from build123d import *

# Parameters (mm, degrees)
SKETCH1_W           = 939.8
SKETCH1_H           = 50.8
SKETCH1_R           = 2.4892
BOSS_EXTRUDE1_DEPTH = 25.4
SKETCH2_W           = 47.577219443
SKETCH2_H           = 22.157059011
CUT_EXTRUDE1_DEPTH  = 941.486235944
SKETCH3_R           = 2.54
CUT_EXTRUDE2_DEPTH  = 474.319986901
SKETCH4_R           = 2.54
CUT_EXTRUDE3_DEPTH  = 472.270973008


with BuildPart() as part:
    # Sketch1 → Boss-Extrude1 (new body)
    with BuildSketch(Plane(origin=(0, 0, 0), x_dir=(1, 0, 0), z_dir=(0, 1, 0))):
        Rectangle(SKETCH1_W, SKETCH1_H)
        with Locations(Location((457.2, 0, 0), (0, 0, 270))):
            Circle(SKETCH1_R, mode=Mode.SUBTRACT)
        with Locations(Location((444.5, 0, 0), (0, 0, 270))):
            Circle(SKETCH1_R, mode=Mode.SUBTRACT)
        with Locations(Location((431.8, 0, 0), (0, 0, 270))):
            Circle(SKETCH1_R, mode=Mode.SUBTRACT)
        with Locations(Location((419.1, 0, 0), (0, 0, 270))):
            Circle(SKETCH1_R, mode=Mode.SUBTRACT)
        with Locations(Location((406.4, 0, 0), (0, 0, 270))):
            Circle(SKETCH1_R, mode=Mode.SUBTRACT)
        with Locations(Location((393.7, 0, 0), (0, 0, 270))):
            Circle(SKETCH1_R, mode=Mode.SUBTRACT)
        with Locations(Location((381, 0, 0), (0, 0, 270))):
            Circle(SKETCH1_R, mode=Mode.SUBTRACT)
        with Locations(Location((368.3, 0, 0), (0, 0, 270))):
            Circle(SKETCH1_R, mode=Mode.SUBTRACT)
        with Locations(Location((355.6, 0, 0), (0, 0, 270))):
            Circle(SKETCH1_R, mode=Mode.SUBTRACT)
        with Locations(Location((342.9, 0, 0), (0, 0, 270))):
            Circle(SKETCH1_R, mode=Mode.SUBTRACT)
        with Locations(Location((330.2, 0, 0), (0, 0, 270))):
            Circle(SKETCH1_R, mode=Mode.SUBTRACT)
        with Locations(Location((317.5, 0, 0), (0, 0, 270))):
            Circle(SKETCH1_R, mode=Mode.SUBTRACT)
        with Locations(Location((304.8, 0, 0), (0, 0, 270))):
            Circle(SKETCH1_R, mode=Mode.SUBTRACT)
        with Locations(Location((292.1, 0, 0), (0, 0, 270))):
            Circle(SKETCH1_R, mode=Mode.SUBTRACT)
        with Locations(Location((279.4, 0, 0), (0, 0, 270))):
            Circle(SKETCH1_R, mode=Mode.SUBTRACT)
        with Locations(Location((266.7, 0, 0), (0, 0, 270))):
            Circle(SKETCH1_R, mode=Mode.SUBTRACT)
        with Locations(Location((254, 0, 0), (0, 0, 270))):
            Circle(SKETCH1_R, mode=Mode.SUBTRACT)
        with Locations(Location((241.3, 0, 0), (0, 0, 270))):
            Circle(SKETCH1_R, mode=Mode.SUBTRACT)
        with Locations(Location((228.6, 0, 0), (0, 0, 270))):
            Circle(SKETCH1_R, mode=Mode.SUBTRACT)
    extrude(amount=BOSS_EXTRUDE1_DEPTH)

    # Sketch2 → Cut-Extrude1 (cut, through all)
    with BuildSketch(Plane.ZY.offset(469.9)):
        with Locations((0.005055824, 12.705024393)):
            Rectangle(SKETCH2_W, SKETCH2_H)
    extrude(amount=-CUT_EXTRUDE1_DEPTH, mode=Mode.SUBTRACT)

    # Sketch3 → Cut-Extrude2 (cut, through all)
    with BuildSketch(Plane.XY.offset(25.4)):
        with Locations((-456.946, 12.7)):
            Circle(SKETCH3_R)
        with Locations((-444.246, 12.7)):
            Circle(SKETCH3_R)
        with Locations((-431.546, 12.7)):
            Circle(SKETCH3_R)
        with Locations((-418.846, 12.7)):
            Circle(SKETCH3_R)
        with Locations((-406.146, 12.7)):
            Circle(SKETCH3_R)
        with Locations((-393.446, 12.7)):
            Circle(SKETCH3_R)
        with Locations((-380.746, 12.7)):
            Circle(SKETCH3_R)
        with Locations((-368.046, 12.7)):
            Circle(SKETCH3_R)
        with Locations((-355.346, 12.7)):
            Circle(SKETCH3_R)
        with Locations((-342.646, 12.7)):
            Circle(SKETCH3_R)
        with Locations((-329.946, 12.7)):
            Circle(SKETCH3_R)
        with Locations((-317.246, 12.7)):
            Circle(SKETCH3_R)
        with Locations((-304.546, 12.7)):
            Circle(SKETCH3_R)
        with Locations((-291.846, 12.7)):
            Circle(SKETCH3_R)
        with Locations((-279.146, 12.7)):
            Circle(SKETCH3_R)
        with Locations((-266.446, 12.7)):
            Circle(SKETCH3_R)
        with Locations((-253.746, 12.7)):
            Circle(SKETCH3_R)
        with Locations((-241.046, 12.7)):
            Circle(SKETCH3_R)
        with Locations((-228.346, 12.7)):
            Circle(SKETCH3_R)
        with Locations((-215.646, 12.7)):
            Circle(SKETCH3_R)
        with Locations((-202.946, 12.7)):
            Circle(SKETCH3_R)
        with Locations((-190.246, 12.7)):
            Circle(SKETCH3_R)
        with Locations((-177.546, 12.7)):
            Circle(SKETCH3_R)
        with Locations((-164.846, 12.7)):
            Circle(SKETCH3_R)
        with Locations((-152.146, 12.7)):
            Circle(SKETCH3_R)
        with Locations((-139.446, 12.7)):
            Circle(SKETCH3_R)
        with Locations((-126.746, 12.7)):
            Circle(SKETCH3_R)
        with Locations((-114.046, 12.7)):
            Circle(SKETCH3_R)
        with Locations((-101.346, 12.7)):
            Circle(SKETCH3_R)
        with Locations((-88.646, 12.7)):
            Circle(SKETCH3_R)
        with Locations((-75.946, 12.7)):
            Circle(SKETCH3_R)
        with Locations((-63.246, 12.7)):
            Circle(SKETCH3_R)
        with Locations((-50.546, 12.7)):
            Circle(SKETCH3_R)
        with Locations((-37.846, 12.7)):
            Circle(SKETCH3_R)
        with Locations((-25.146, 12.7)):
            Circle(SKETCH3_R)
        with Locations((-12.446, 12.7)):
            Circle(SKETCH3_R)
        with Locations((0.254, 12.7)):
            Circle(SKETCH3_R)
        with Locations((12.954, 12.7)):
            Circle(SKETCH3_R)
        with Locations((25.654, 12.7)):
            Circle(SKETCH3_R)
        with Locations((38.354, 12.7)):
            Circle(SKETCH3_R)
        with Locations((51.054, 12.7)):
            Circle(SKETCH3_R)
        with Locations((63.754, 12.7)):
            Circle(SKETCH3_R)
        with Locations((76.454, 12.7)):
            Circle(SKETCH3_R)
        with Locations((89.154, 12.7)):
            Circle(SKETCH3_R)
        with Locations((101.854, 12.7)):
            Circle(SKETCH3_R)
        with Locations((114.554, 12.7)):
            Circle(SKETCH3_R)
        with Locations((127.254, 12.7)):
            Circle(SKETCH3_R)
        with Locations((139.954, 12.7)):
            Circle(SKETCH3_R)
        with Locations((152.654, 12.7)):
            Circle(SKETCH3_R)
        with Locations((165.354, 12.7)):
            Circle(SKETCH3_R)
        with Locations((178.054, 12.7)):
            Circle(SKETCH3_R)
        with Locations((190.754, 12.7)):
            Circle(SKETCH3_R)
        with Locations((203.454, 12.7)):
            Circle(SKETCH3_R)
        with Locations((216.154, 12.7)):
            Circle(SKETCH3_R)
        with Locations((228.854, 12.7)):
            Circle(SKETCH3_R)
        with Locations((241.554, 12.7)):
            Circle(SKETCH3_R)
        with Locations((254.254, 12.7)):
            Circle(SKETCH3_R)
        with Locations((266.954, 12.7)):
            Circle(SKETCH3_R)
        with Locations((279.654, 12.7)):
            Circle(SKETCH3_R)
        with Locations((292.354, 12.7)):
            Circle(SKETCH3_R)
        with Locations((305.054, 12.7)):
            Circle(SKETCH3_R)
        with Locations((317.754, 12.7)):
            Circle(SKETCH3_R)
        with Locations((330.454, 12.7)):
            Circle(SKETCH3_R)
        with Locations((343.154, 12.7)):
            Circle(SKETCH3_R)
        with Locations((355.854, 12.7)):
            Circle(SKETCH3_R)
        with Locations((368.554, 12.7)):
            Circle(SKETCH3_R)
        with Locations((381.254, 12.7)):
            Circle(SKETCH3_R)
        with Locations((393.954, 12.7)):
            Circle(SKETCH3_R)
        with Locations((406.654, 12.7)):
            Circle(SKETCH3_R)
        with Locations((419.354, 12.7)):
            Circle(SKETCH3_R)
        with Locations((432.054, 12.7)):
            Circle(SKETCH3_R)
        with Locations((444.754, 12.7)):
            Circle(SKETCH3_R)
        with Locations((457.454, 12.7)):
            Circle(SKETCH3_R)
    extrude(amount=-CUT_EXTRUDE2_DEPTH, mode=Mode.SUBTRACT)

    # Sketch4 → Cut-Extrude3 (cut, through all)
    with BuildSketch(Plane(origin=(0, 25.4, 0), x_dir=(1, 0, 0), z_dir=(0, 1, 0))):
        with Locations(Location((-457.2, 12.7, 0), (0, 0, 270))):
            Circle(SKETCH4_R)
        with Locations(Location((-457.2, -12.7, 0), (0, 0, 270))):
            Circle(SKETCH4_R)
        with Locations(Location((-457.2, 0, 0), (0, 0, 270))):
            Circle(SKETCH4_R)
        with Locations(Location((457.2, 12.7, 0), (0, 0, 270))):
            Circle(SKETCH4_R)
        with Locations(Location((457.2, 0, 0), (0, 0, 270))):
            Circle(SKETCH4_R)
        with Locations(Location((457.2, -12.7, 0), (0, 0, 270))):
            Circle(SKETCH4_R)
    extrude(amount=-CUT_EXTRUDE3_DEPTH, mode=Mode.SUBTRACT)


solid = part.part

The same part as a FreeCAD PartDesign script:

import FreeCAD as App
import Part
import Sketcher

V = App.Vector
Q = App.Units.Quantity


def add_polygon(sketch, points):
    """Adds a closed chain of lines whose ends are joined by coincident constraints."""
    first, n = sketch.GeometryCount, len(points)
    for a, b in zip(points, points[1:] + points[:1]):
        sketch.addGeometry(Part.LineSegment(App.Vector(*a, 0), App.Vector(*b, 0)), False)
    for i in range(n):
        sketch.addConstraint(Sketcher.Constraint("Coincident", first + i, 2, first + (i + 1) % n, 1))

doc = App.newDocument("Part")
body = doc.addObject("PartDesign::Body", "Body")

sketch1 = body.newObject("Sketcher::SketchObject", "Sketch")
sketch1.AttachmentSupport = (doc.getObject("XZ_Plane"), [""])
sketch1.MapMode = "FlatFace"
add_polygon(sketch1, [(-469.9, -25.4), (-469.9, 25.4), (469.9, 25.4), (469.9, -25.4)])
sketch1.addGeometry(Part.Circle(V(228.6, 0, 0), V(0, 0, 1), 2.5), False)
sketch1.addGeometry(Part.Circle(V(241.3, 0, 0), V(0, 0, 1), 2.5), False)
sketch1.addGeometry(Part.Circle(V(254, 0, 0), V(0, 0, 1), 2.5), False)
sketch1.addGeometry(Part.Circle(V(266.7, 0, 0), V(0, 0, 1), 2.5), False)
sketch1.addGeometry(Part.Circle(V(279.4, 0, 0), V(0, 0, 1), 2.5), False)
sketch1.addGeometry(Part.Circle(V(292.1, 0, 0), V(0, 0, 1), 2.5), False)
sketch1.addGeometry(Part.Circle(V(304.8, 0, 0), V(0, 0, 1), 2.5), False)
sketch1.addGeometry(Part.Circle(V(317.5, 0, 0), V(0, 0, 1), 2.5), False)
sketch1.addGeometry(Part.Circle(V(330.2, 0, 0), V(0, 0, 1), 2.5), False)
sketch1.addGeometry(Part.Circle(V(342.9, 0, 0), V(0, 0, 1), 2.5), False)
sketch1.addGeometry(Part.Circle(V(355.6, 0, 0), V(0, 0, 1), 2.5), False)
sketch1.addGeometry(Part.Circle(V(368.3, 0, 0), V(0, 0, 1), 2.5), False)
sketch1.addGeometry(Part.Circle(V(381, 0, 0), V(0, 0, 1), 2.5), False)
sketch1.addGeometry(Part.Circle(V(393.7, 0, 0), V(0, 0, 1), 2.5), False)
sketch1.addGeometry(Part.Circle(V(406.4, 0, 0), V(0, 0, 1), 2.5), False)
sketch1.addGeometry(Part.Circle(V(419.1, 0, 0), V(0, 0, 1), 2.5), False)
sketch1.addGeometry(Part.Circle(V(431.8, 0, 0), V(0, 0, 1), 2.5), False)
sketch1.addGeometry(Part.Circle(V(444.5, 0, 0), V(0, 0, 1), 2.5), False)
sketch1.addGeometry(Part.Circle(V(457.2, 0, 0), V(0, 0, 1), 2.5), False)
sketch1.addConstraint(Sketcher.Constraint("Vertical", 0))
sketch1.addConstraint(Sketcher.Constraint("Horizontal", 1))
sketch1.addConstraint(Sketcher.Constraint("Vertical", 2))
sketch1.addConstraint(Sketcher.Constraint("Horizontal", 3))
sketch1.addConstraint(Sketcher.Constraint("Equal", 4, 5))
sketch1.addConstraint(Sketcher.Constraint("Equal", 5, 6))
sketch1.addConstraint(Sketcher.Constraint("Equal", 6, 7))
sketch1.addConstraint(Sketcher.Constraint("Equal", 7, 8))
sketch1.addConstraint(Sketcher.Constraint("Equal", 8, 9))
sketch1.addConstraint(Sketcher.Constraint("Equal", 9, 10))
sketch1.addConstraint(Sketcher.Constraint("Equal", 10, 11))
sketch1.addConstraint(Sketcher.Constraint("Equal", 11, 12))
sketch1.addConstraint(Sketcher.Constraint("Equal", 12, 13))
sketch1.addConstraint(Sketcher.Constraint("Equal", 13, 14))
sketch1.addConstraint(Sketcher.Constraint("Equal", 14, 15))
sketch1.addConstraint(Sketcher.Constraint("Equal", 15, 16))
sketch1.addConstraint(Sketcher.Constraint("Equal", 16, 17))
sketch1.addConstraint(Sketcher.Constraint("Equal", 17, 18))
sketch1.addConstraint(Sketcher.Constraint("Equal", 18, 19))
sketch1.addConstraint(Sketcher.Constraint("Equal", 19, 20))
sketch1.addConstraint(Sketcher.Constraint("Equal", 20, 21))
sketch1.addConstraint(Sketcher.Constraint("Equal", 21, 22))
sketch1.addConstraint(Sketcher.Constraint("Symmetric", 0, 2, 2, 2, -1, 1))
sketch1.addConstraint(Sketcher.Constraint("PointOnObject", 4, 3, -1))
sketch1.addConstraint(Sketcher.Constraint("PointOnObject", 5, 3, -1))
sketch1.addConstraint(Sketcher.Constraint("PointOnObject", 6, 3, -1))
sketch1.addConstraint(Sketcher.Constraint("PointOnObject", 7, 3, -1))
sketch1.addConstraint(Sketcher.Constraint("PointOnObject", 8, 3, -1))
sketch1.addConstraint(Sketcher.Constraint("PointOnObject", 9, 3, -1))
sketch1.addConstraint(Sketcher.Constraint("PointOnObject", 10, 3, -1))
sketch1.addConstraint(Sketcher.Constraint("PointOnObject", 11, 3, -1))
sketch1.addConstraint(Sketcher.Constraint("PointOnObject", 12, 3, -1))
sketch1.addConstraint(Sketcher.Constraint("PointOnObject", 13, 3, -1))
sketch1.addConstraint(Sketcher.Constraint("PointOnObject", 14, 3, -1))
sketch1.addConstraint(Sketcher.Constraint("PointOnObject", 15, 3, -1))
sketch1.addConstraint(Sketcher.Constraint("PointOnObject", 16, 3, -1))
sketch1.addConstraint(Sketcher.Constraint("PointOnObject", 17, 3, -1))
sketch1.addConstraint(Sketcher.Constraint("PointOnObject", 18, 3, -1))
sketch1.addConstraint(Sketcher.Constraint("PointOnObject", 19, 3, -1))
sketch1.addConstraint(Sketcher.Constraint("PointOnObject", 20, 3, -1))
sketch1.addConstraint(Sketcher.Constraint("PointOnObject", 21, 3, -1))
sketch1.addConstraint(Sketcher.Constraint("PointOnObject", 22, 3, -1))
sketch1.addConstraint(Sketcher.Constraint("DistanceX", 1, 1, 1, 2, Q("37 in")))
sketch1.addConstraint(Sketcher.Constraint("DistanceY", 0, 1, 0, 2, Q("2 in")))
sketch1.addConstraint(Sketcher.Constraint("Diameter", 4, Q("0.196 in")))
sketch1.addConstraint(Sketcher.Constraint("DistanceX", -1, 1, 4, 3, Q("9 in")))
sketch1.addConstraint(Sketcher.Constraint("DistanceX", -1, 1, 6, 3, Q("10 in")))
sketch1.addConstraint(Sketcher.Constraint("DistanceX", -1, 1, 8, 3, Q("11 in")))
sketch1.addConstraint(Sketcher.Constraint("DistanceX", -1, 1, 10, 3, Q("12 in")))
sketch1.addConstraint(Sketcher.Constraint("DistanceX", -1, 1, 12, 3, Q("13 in")))
sketch1.addConstraint(Sketcher.Constraint("DistanceX", -1, 1, 14, 3, Q("14 in")))
sketch1.addConstraint(Sketcher.Constraint("DistanceX", -1, 1, 16, 3, Q("15 in")))
sketch1.addConstraint(Sketcher.Constraint("DistanceX", -1, 1, 18, 3, Q("16 in")))
sketch1.addConstraint(Sketcher.Constraint("DistanceX", -1, 1, 20, 3, Q("17 in")))
sketch1.addConstraint(Sketcher.Constraint("DistanceX", -1, 1, 22, 3, Q("18 in")))
sketch1.addConstraint(Sketcher.Constraint("DistanceX", 5, 3, 7, 3, Q("1 in")))
sketch1.addConstraint(Sketcher.Constraint("DistanceX", 7, 3, 9, 3, Q("1 in")))
sketch1.addConstraint(Sketcher.Constraint("DistanceX", 9, 3, 11, 3, Q("1 in")))
sketch1.addConstraint(Sketcher.Constraint("DistanceX", 11, 3, 13, 3, Q("1 in")))
sketch1.addConstraint(Sketcher.Constraint("DistanceX", 13, 3, 15, 3, Q("1 in")))
sketch1.addConstraint(Sketcher.Constraint("DistanceX", 15, 3, 17, 3, Q("1 in")))
sketch1.addConstraint(Sketcher.Constraint("DistanceX", 17, 3, 19, 3, Q("1 in")))
sketch1.addConstraint(Sketcher.Constraint("DistanceX", 19, 3, 21, 3, Q("1 in")))
sketch1.addConstraint(Sketcher.Constraint("DistanceX", 0, 2, 5, 3, Q("28 in")))
pad1 = body.newObject("PartDesign::Pad", "Pad")
pad1.Profile = sketch1
pad1.Length = Q("1 in")
pad1.Reversed = True

sketch2 = body.newObject("Sketcher::SketchObject", "Sketch001")
sketch2.AttachmentSupport = (doc.getObject("YZ_Plane"), [""])
sketch2.MapMode = "FlatFace"
sketch2.AttachmentOffset = App.Placement(V(0, 0, -18.5 * 25.4), App.Rotation())
add_polygon(sketch2, [(24, -24), (2, -24), (2, 24), (24, 24)])
sketch2.addConstraint(Sketcher.Constraint("Horizontal", 0))
sketch2.addConstraint(Sketcher.Constraint("Vertical", 1))
sketch2.addConstraint(Sketcher.Constraint("Horizontal", 2))
sketch2.addConstraint(Sketcher.Constraint("Vertical", 3))
sketch2.addConstraint(Sketcher.Constraint("DistanceX", 0, 2, 0, 1, Q("22.157059 mm")))
sketch2.addConstraint(Sketcher.Constraint("DistanceY", 1, 1, 1, 2, Q("47.577219 mm")))
sketch2.addConstraint(Sketcher.Constraint("DistanceX", -1, 1, 0, 2, Q("1.626495 mm")))
sketch2.addConstraint(Sketcher.Constraint("DistanceY", 0, 2, -1, 1, Q("23.783554 mm")))
pocket1 = body.newObject("PartDesign::Pocket", "Pocket")
pocket1.Profile = sketch2
pocket1.Type = "ThroughAll"
pocket1.Reversed = True

sketch3 = body.newObject("Sketcher::SketchObject", "Sketch002")
sketch3.AttachmentSupport = (doc.getObject("XY_Plane"), [""])
sketch3.MapMode = "FlatFace"
sketch3.AttachmentOffset = App.Placement(V(0, 0, 1 * 25.4), App.Rotation())
sketch3.addGeometry(Part.Circle(V(-456.9, 12.7, 0), V(0, 0, 1), 2.5), False)
sketch3.addGeometry(Part.Circle(V(-444.2, 12.7, 0), V(0, 0, 1), 2.5), False)
sketch3.addGeometry(Part.Circle(V(-431.5, 12.7, 0), V(0, 0, 1), 2.5), False)
sketch3.addGeometry(Part.Circle(V(-418.8, 12.7, 0), V(0, 0, 1), 2.5), False)
sketch3.addGeometry(Part.Circle(V(-406.1, 12.7, 0), V(0, 0, 1), 2.5), False)
sketch3.addGeometry(Part.Circle(V(-393.4, 12.7, 0), V(0, 0, 1), 2.5), False)
sketch3.addGeometry(Part.Circle(V(-380.7, 12.7, 0), V(0, 0, 1), 2.5), False)
sketch3.addGeometry(Part.Circle(V(-368, 12.7, 0), V(0, 0, 1), 2.5), False)
sketch3.addGeometry(Part.Circle(V(-355.3, 12.7, 0), V(0, 0, 1), 2.5), False)
sketch3.addGeometry(Part.Circle(V(-342.6, 12.7, 0), V(0, 0, 1), 2.5), False)
sketch3.addGeometry(Part.Circle(V(-329.9, 12.7, 0), V(0, 0, 1), 2.5), False)
sketch3.addGeometry(Part.Circle(V(-317.2, 12.7, 0), V(0, 0, 1), 2.5), False)
sketch3.addGeometry(Part.Circle(V(-304.5, 12.7, 0), V(0, 0, 1), 2.5), False)
sketch3.addGeometry(Part.Circle(V(-291.8, 12.7, 0), V(0, 0, 1), 2.5), False)
sketch3.addGeometry(Part.Circle(V(-279.1, 12.7, 0), V(0, 0, 1), 2.5), False)
sketch3.addGeometry(Part.Circle(V(-266.4, 12.7, 0), V(0, 0, 1), 2.5), False)
sketch3.addGeometry(Part.Circle(V(-253.7, 12.7, 0), V(0, 0, 1), 2.5), False)
sketch3.addGeometry(Part.Circle(V(-241, 12.7, 0), V(0, 0, 1), 2.5), False)
sketch3.addGeometry(Part.Circle(V(-228.3, 12.7, 0), V(0, 0, 1), 2.5), False)
sketch3.addGeometry(Part.Circle(V(-215.6, 12.7, 0), V(0, 0, 1), 2.5), False)
sketch3.addGeometry(Part.Circle(V(-202.9, 12.7, 0), V(0, 0, 1), 2.5), False)
sketch3.addGeometry(Part.Circle(V(-190.2, 12.7, 0), V(0, 0, 1), 2.5), False)
sketch3.addGeometry(Part.Circle(V(-177.5, 12.7, 0), V(0, 0, 1), 2.5), False)
sketch3.addGeometry(Part.Circle(V(-164.8, 12.7, 0), V(0, 0, 1), 2.5), False)
sketch3.addGeometry(Part.Circle(V(-152.1, 12.7, 0), V(0, 0, 1), 2.5), False)
sketch3.addGeometry(Part.Circle(V(-139.4, 12.7, 0), V(0, 0, 1), 2.5), False)
sketch3.addGeometry(Part.Circle(V(-126.7, 12.7, 0), V(0, 0, 1), 2.5), False)
sketch3.addGeometry(Part.Circle(V(-114, 12.7, 0), V(0, 0, 1), 2.5), False)
sketch3.addGeometry(Part.Circle(V(-101.3, 12.7, 0), V(0, 0, 1), 2.5), False)
sketch3.addGeometry(Part.Circle(V(-88.6, 12.7, 0), V(0, 0, 1), 2.5), False)
sketch3.addGeometry(Part.Circle(V(-75.9, 12.7, 0), V(0, 0, 1), 2.5), False)
sketch3.addGeometry(Part.Circle(V(-63.2, 12.7, 0), V(0, 0, 1), 2.5), False)
sketch3.addGeometry(Part.Circle(V(-50.5, 12.7, 0), V(0, 0, 1), 2.5), False)
sketch3.addGeometry(Part.Circle(V(-37.8, 12.7, 0), V(0, 0, 1), 2.5), False)
sketch3.addGeometry(Part.Circle(V(-25.1, 12.7, 0), V(0, 0, 1), 2.5), False)
sketch3.addGeometry(Part.Circle(V(-12.4, 12.7, 0), V(0, 0, 1), 2.5), False)
sketch3.addGeometry(Part.Circle(V(0.3, 12.7, 0), V(0, 0, 1), 2.5), False)
sketch3.addGeometry(Part.Circle(V(13, 12.7, 0), V(0, 0, 1), 2.5), False)
sketch3.addGeometry(Part.Circle(V(25.7, 12.7, 0), V(0, 0, 1), 2.5), False)
sketch3.addGeometry(Part.Circle(V(38.4, 12.7, 0), V(0, 0, 1), 2.5), False)
sketch3.addGeometry(Part.Circle(V(51.1, 12.7, 0), V(0, 0, 1), 2.5), False)
sketch3.addGeometry(Part.Circle(V(63.8, 12.7, 0), V(0, 0, 1), 2.5), False)
sketch3.addGeometry(Part.Circle(V(76.5, 12.7, 0), V(0, 0, 1), 2.5), False)
sketch3.addGeometry(Part.Circle(V(89.2, 12.7, 0), V(0, 0, 1), 2.5), False)
sketch3.addGeometry(Part.Circle(V(101.9, 12.7, 0), V(0, 0, 1), 2.5), False)
sketch3.addGeometry(Part.Circle(V(114.6, 12.7, 0), V(0, 0, 1), 2.5), False)
sketch3.addGeometry(Part.Circle(V(127.3, 12.7, 0), V(0, 0, 1), 2.5), False)
sketch3.addGeometry(Part.Circle(V(140, 12.7, 0), V(0, 0, 1), 2.5), False)
sketch3.addGeometry(Part.Circle(V(152.7, 12.7, 0), V(0, 0, 1), 2.5), False)
sketch3.addGeometry(Part.Circle(V(165.4, 12.7, 0), V(0, 0, 1), 2.5), False)
sketch3.addGeometry(Part.Circle(V(178.1, 12.7, 0), V(0, 0, 1), 2.5), False)
sketch3.addGeometry(Part.Circle(V(190.8, 12.7, 0), V(0, 0, 1), 2.5), False)
sketch3.addGeometry(Part.Circle(V(203.5, 12.7, 0), V(0, 0, 1), 2.5), False)
sketch3.addGeometry(Part.Circle(V(216.2, 12.7, 0), V(0, 0, 1), 2.5), False)
sketch3.addGeometry(Part.Circle(V(228.9, 12.7, 0), V(0, 0, 1), 2.5), False)
sketch3.addGeometry(Part.Circle(V(241.6, 12.7, 0), V(0, 0, 1), 2.5), False)
sketch3.addGeometry(Part.Circle(V(254.3, 12.7, 0), V(0, 0, 1), 2.5), False)
sketch3.addGeometry(Part.Circle(V(267, 12.7, 0), V(0, 0, 1), 2.5), False)
sketch3.addGeometry(Part.Circle(V(279.7, 12.7, 0), V(0, 0, 1), 2.5), False)
sketch3.addGeometry(Part.Circle(V(292.4, 12.7, 0), V(0, 0, 1), 2.5), False)
sketch3.addGeometry(Part.Circle(V(305.1, 12.7, 0), V(0, 0, 1), 2.5), False)
sketch3.addGeometry(Part.Circle(V(317.8, 12.7, 0), V(0, 0, 1), 2.5), False)
sketch3.addGeometry(Part.Circle(V(330.5, 12.7, 0), V(0, 0, 1), 2.5), False)
sketch3.addGeometry(Part.Circle(V(343.2, 12.7, 0), V(0, 0, 1), 2.5), False)
sketch3.addGeometry(Part.Circle(V(355.9, 12.7, 0), V(0, 0, 1), 2.5), False)
sketch3.addGeometry(Part.Circle(V(368.6, 12.7, 0), V(0, 0, 1), 2.5), False)
sketch3.addGeometry(Part.Circle(V(381.3, 12.7, 0), V(0, 0, 1), 2.5), False)
sketch3.addGeometry(Part.Circle(V(394, 12.7, 0), V(0, 0, 1), 2.5), False)
sketch3.addGeometry(Part.Circle(V(406.7, 12.7, 0), V(0, 0, 1), 2.5), False)
sketch3.addGeometry(Part.Circle(V(419.4, 12.7, 0), V(0, 0, 1), 2.5), False)
sketch3.addGeometry(Part.Circle(V(432.1, 12.7, 0), V(0, 0, 1), 2.5), False)
sketch3.addGeometry(Part.Circle(V(444.8, 12.7, 0), V(0, 0, 1), 2.5), False)
sketch3.addGeometry(Part.Circle(V(457.5, 12.7, 0), V(0, 0, 1), 2.5), False)
sketch3.addConstraint(Sketcher.Constraint("Equal", 0, 1))
sketch3.addConstraint(Sketcher.Constraint("Equal", 1, 2))
sketch3.addConstraint(Sketcher.Constraint("Equal", 2, 3))
sketch3.addConstraint(Sketcher.Constraint("Equal", 3, 4))
sketch3.addConstraint(Sketcher.Constraint("Equal", 4, 5))
sketch3.addConstraint(Sketcher.Constraint("Equal", 5, 6))
sketch3.addConstraint(Sketcher.Constraint("Equal", 6, 7))
sketch3.addConstraint(Sketcher.Constraint("Equal", 7, 8))
sketch3.addConstraint(Sketcher.Constraint("Equal", 8, 9))
sketch3.addConstraint(Sketcher.Constraint("Equal", 9, 10))
sketch3.addConstraint(Sketcher.Constraint("Equal", 10, 11))
sketch3.addConstraint(Sketcher.Constraint("Equal", 11, 12))
sketch3.addConstraint(Sketcher.Constraint("Equal", 12, 13))
sketch3.addConstraint(Sketcher.Constraint("Equal", 13, 14))
sketch3.addConstraint(Sketcher.Constraint("Equal", 14, 15))
sketch3.addConstraint(Sketcher.Constraint("Equal", 15, 16))
sketch3.addConstraint(Sketcher.Constraint("Equal", 16, 17))
sketch3.addConstraint(Sketcher.Constraint("Equal", 17, 18))
sketch3.addConstraint(Sketcher.Constraint("Equal", 18, 19))
sketch3.addConstraint(Sketcher.Constraint("Equal", 19, 20))
sketch3.addConstraint(Sketcher.Constraint("Equal", 20, 21))
sketch3.addConstraint(Sketcher.Constraint("Equal", 21, 22))
sketch3.addConstraint(Sketcher.Constraint("Equal", 22, 23))
sketch3.addConstraint(Sketcher.Constraint("Equal", 23, 24))
sketch3.addConstraint(Sketcher.Constraint("Equal", 24, 25))
sketch3.addConstraint(Sketcher.Constraint("Equal", 25, 26))
sketch3.addConstraint(Sketcher.Constraint("Equal", 26, 27))
sketch3.addConstraint(Sketcher.Constraint("Equal", 27, 28))
sketch3.addConstraint(Sketcher.Constraint("Equal", 28, 29))
sketch3.addConstraint(Sketcher.Constraint("Equal", 29, 30))
sketch3.addConstraint(Sketcher.Constraint("Equal", 30, 31))
sketch3.addConstraint(Sketcher.Constraint("Equal", 31, 32))
sketch3.addConstraint(Sketcher.Constraint("Equal", 32, 33))
sketch3.addConstraint(Sketcher.Constraint("Equal", 33, 34))
sketch3.addConstraint(Sketcher.Constraint("Equal", 34, 35))
sketch3.addConstraint(Sketcher.Constraint("Equal", 35, 36))
sketch3.addConstraint(Sketcher.Constraint("Equal", 36, 37))
sketch3.addConstraint(Sketcher.Constraint("Equal", 37, 38))
sketch3.addConstraint(Sketcher.Constraint("Equal", 38, 39))
sketch3.addConstraint(Sketcher.Constraint("Equal", 39, 40))
sketch3.addConstraint(Sketcher.Constraint("Equal", 40, 41))
sketch3.addConstraint(Sketcher.Constraint("Equal", 41, 42))
sketch3.addConstraint(Sketcher.Constraint("Equal", 42, 43))
sketch3.addConstraint(Sketcher.Constraint("Equal", 43, 44))
sketch3.addConstraint(Sketcher.Constraint("Equal", 44, 45))
sketch3.addConstraint(Sketcher.Constraint("Equal", 45, 46))
sketch3.addConstraint(Sketcher.Constraint("Equal", 46, 47))
sketch3.addConstraint(Sketcher.Constraint("Equal", 47, 48))
sketch3.addConstraint(Sketcher.Constraint("Equal", 48, 49))
sketch3.addConstraint(Sketcher.Constraint("Equal", 49, 50))
sketch3.addConstraint(Sketcher.Constraint("Equal", 50, 51))
sketch3.addConstraint(Sketcher.Constraint("Equal", 51, 52))
sketch3.addConstraint(Sketcher.Constraint("Equal", 52, 53))
sketch3.addConstraint(Sketcher.Constraint("Equal", 53, 54))
sketch3.addConstraint(Sketcher.Constraint("Equal", 54, 55))
sketch3.addConstraint(Sketcher.Constraint("Equal", 55, 56))
sketch3.addConstraint(Sketcher.Constraint("Equal", 56, 57))
sketch3.addConstraint(Sketcher.Constraint("Equal", 57, 58))
sketch3.addConstraint(Sketcher.Constraint("Equal", 58, 59))
sketch3.addConstraint(Sketcher.Constraint("Equal", 59, 60))
sketch3.addConstraint(Sketcher.Constraint("Equal", 60, 61))
sketch3.addConstraint(Sketcher.Constraint("Equal", 61, 62))
sketch3.addConstraint(Sketcher.Constraint("Equal", 62, 63))
sketch3.addConstraint(Sketcher.Constraint("Equal", 63, 64))
sketch3.addConstraint(Sketcher.Constraint("Equal", 64, 65))
sketch3.addConstraint(Sketcher.Constraint("Equal", 65, 66))
sketch3.addConstraint(Sketcher.Constraint("Equal", 66, 67))
sketch3.addConstraint(Sketcher.Constraint("Equal", 67, 68))
sketch3.addConstraint(Sketcher.Constraint("Equal", 68, 69))
sketch3.addConstraint(Sketcher.Constraint("Equal", 69, 70))
sketch3.addConstraint(Sketcher.Constraint("Equal", 70, 71))
sketch3.addConstraint(Sketcher.Constraint("Equal", 71, 72))
sketch3.addConstraint(Sketcher.Constraint("Horizontal", 0, 3, 1, 3))
sketch3.addConstraint(Sketcher.Constraint("Horizontal", 1, 3, 2, 3))
sketch3.addConstraint(Sketcher.Constraint("Horizontal", 2, 3, 3, 3))
sketch3.addConstraint(Sketcher.Constraint("Horizontal", 3, 3, 4, 3))
sketch3.addConstraint(Sketcher.Constraint("Horizontal", 4, 3, 5, 3))
sketch3.addConstraint(Sketcher.Constraint("Horizontal", 5, 3, 6, 3))
sketch3.addConstraint(Sketcher.Constraint("Horizontal", 6, 3, 7, 3))
sketch3.addConstraint(Sketcher.Constraint("Horizontal", 7, 3, 8, 3))
sketch3.addConstraint(Sketcher.Constraint("Horizontal", 8, 3, 9, 3))
sketch3.addConstraint(Sketcher.Constraint("Horizontal", 9, 3, 10, 3))
sketch3.addConstraint(Sketcher.Constraint("Horizontal", 10, 3, 11, 3))
sketch3.addConstraint(Sketcher.Constraint("Horizontal", 11, 3, 12, 3))
sketch3.addConstraint(Sketcher.Constraint("Horizontal", 12, 3, 13, 3))
sketch3.addConstraint(Sketcher.Constraint("Horizontal", 13, 3, 14, 3))
sketch3.addConstraint(Sketcher.Constraint("Horizontal", 14, 3, 15, 3))
sketch3.addConstraint(Sketcher.Constraint("Horizontal", 15, 3, 16, 3))
sketch3.addConstraint(Sketcher.Constraint("Horizontal", 16, 3, 17, 3))
sketch3.addConstraint(Sketcher.Constraint("Horizontal", 17, 3, 18, 3))
sketch3.addConstraint(Sketcher.Constraint("Horizontal", 18, 3, 19, 3))
sketch3.addConstraint(Sketcher.Constraint("Horizontal", 19, 3, 20, 3))
sketch3.addConstraint(Sketcher.Constraint("Horizontal", 20, 3, 21, 3))
sketch3.addConstraint(Sketcher.Constraint("Horizontal", 21, 3, 22, 3))
sketch3.addConstraint(Sketcher.Constraint("Horizontal", 22, 3, 23, 3))
sketch3.addConstraint(Sketcher.Constraint("Horizontal", 23, 3, 24, 3))
sketch3.addConstraint(Sketcher.Constraint("Horizontal", 24, 3, 25, 3))
sketch3.addConstraint(Sketcher.Constraint("Horizontal", 25, 3, 26, 3))
sketch3.addConstraint(Sketcher.Constraint("Horizontal", 26, 3, 27, 3))
sketch3.addConstraint(Sketcher.Constraint("Horizontal", 27, 3, 28, 3))
sketch3.addConstraint(Sketcher.Constraint("Horizontal", 28, 3, 29, 3))
sketch3.addConstraint(Sketcher.Constraint("Horizontal", 29, 3, 30, 3))
sketch3.addConstraint(Sketcher.Constraint("Horizontal", 30, 3, 31, 3))
sketch3.addConstraint(Sketcher.Constraint("Horizontal", 31, 3, 32, 3))
sketch3.addConstraint(Sketcher.Constraint("Horizontal", 32, 3, 33, 3))
sketch3.addConstraint(Sketcher.Constraint("Horizontal", 33, 3, 34, 3))
sketch3.addConstraint(Sketcher.Constraint("Horizontal", 34, 3, 35, 3))
sketch3.addConstraint(Sketcher.Constraint("Horizontal", 35, 3, 36, 3))
sketch3.addConstraint(Sketcher.Constraint("Horizontal", 36, 3, 37, 3))
sketch3.addConstraint(Sketcher.Constraint("Horizontal", 37, 3, 38, 3))
sketch3.addConstraint(Sketcher.Constraint("Horizontal", 38, 3, 39, 3))
sketch3.addConstraint(Sketcher.Constraint("Horizontal", 39, 3, 40, 3))
sketch3.addConstraint(Sketcher.Constraint("Horizontal", 40, 3, 41, 3))
sketch3.addConstraint(Sketcher.Constraint("Horizontal", 41, 3, 42, 3))
sketch3.addConstraint(Sketcher.Constraint("Horizontal", 42, 3, 43, 3))
sketch3.addConstraint(Sketcher.Constraint("Horizontal", 43, 3, 44, 3))
sketch3.addConstraint(Sketcher.Constraint("Horizontal", 44, 3, 45, 3))
sketch3.addConstraint(Sketcher.Constraint("Horizontal", 45, 3, 46, 3))
sketch3.addConstraint(Sketcher.Constraint("Horizontal", 46, 3, 47, 3))
sketch3.addConstraint(Sketcher.Constraint("Horizontal", 47, 3, 48, 3))
sketch3.addConstraint(Sketcher.Constraint("Horizontal", 48, 3, 49, 3))
sketch3.addConstraint(Sketcher.Constraint("Horizontal", 49, 3, 50, 3))
sketch3.addConstraint(Sketcher.Constraint("Horizontal", 50, 3, 51, 3))
sketch3.addConstraint(Sketcher.Constraint("Horizontal", 51, 3, 52, 3))
sketch3.addConstraint(Sketcher.Constraint("Horizontal", 52, 3, 53, 3))
sketch3.addConstraint(Sketcher.Constraint("Horizontal", 53, 3, 54, 3))
sketch3.addConstraint(Sketcher.Constraint("Horizontal", 54, 3, 55, 3))
sketch3.addConstraint(Sketcher.Constraint("Horizontal", 55, 3, 56, 3))
sketch3.addConstraint(Sketcher.Constraint("Horizontal", 56, 3, 57, 3))
sketch3.addConstraint(Sketcher.Constraint("Horizontal", 57, 3, 58, 3))
sketch3.addConstraint(Sketcher.Constraint("Horizontal", 58, 3, 59, 3))
sketch3.addConstraint(Sketcher.Constraint("Horizontal", 59, 3, 60, 3))
sketch3.addConstraint(Sketcher.Constraint("Horizontal", 60, 3, 61, 3))
sketch3.addConstraint(Sketcher.Constraint("Horizontal", 61, 3, 62, 3))
sketch3.addConstraint(Sketcher.Constraint("Horizontal", 62, 3, 63, 3))
sketch3.addConstraint(Sketcher.Constraint("Horizontal", 63, 3, 64, 3))
sketch3.addConstraint(Sketcher.Constraint("Horizontal", 64, 3, 65, 3))
sketch3.addConstraint(Sketcher.Constraint("Horizontal", 65, 3, 66, 3))
sketch3.addConstraint(Sketcher.Constraint("Horizontal", 66, 3, 67, 3))
sketch3.addConstraint(Sketcher.Constraint("Horizontal", 67, 3, 68, 3))
sketch3.addConstraint(Sketcher.Constraint("Horizontal", 68, 3, 69, 3))
sketch3.addConstraint(Sketcher.Constraint("Horizontal", 69, 3, 70, 3))
sketch3.addConstraint(Sketcher.Constraint("Horizontal", 70, 3, 71, 3))
sketch3.addConstraint(Sketcher.Constraint("Horizontal", 71, 3, 72, 3))
sketch3.addConstraint(Sketcher.Constraint("Diameter", 0, Q("0.2 in")))
sketch3.addConstraint(Sketcher.Constraint("DistanceY", -1, 1, 0, 3, Q("0.5 in")))
sketch3.addConstraint(Sketcher.Constraint("DistanceX", 0, 3, -1, 1, Q("17.99 in")))
sketch3.addConstraint(Sketcher.Constraint("DistanceX", 1, 3, -1, 1, Q("17.49 in")))
sketch3.addConstraint(Sketcher.Constraint("DistanceX", 2, 3, -1, 1, Q("16.99 in")))
sketch3.addConstraint(Sketcher.Constraint("DistanceX", 3, 3, -1, 1, Q("16.49 in")))
sketch3.addConstraint(Sketcher.Constraint("DistanceX", 4, 3, -1, 1, Q("15.99 in")))
sketch3.addConstraint(Sketcher.Constraint("DistanceX", 5, 3, -1, 1, Q("15.49 in")))
sketch3.addConstraint(Sketcher.Constraint("DistanceX", 6, 3, -1, 1, Q("14.99 in")))
sketch3.addConstraint(Sketcher.Constraint("DistanceX", 7, 3, -1, 1, Q("14.49 in")))
sketch3.addConstraint(Sketcher.Constraint("DistanceX", 8, 3, -1, 1, Q("13.99 in")))
sketch3.addConstraint(Sketcher.Constraint("DistanceX", 9, 3, -1, 1, Q("13.49 in")))
sketch3.addConstraint(Sketcher.Constraint("DistanceX", 10, 3, -1, 1, Q("12.99 in")))
sketch3.addConstraint(Sketcher.Constraint("DistanceX", 11, 3, -1, 1, Q("12.49 in")))
sketch3.addConstraint(Sketcher.Constraint("DistanceX", 12, 3, -1, 1, Q("11.99 in")))
sketch3.addConstraint(Sketcher.Constraint("DistanceX", 13, 3, -1, 1, Q("11.49 in")))
sketch3.addConstraint(Sketcher.Constraint("DistanceX", 14, 3, -1, 1, Q("10.99 in")))
sketch3.addConstraint(Sketcher.Constraint("DistanceX", 15, 3, -1, 1, Q("10.49 in")))
sketch3.addConstraint(Sketcher.Constraint("DistanceX", 16, 3, -1, 1, Q("9.99 in")))
sketch3.addConstraint(Sketcher.Constraint("DistanceX", 17, 3, -1, 1, Q("9.49 in")))
sketch3.addConstraint(Sketcher.Constraint("DistanceX", 18, 3, -1, 1, Q("8.99 in")))
sketch3.addConstraint(Sketcher.Constraint("DistanceX", 19, 3, -1, 1, Q("8.49 in")))
sketch3.addConstraint(Sketcher.Constraint("DistanceX", 20, 3, -1, 1, Q("7.99 in")))
sketch3.addConstraint(Sketcher.Constraint("DistanceX", 21, 3, -1, 1, Q("7.49 in")))
sketch3.addConstraint(Sketcher.Constraint("DistanceX", 22, 3, -1, 1, Q("6.99 in")))
sketch3.addConstraint(Sketcher.Constraint("DistanceX", 23, 3, -1, 1, Q("6.49 in")))
sketch3.addConstraint(Sketcher.Constraint("DistanceX", 24, 3, -1, 1, Q("5.99 in")))
sketch3.addConstraint(Sketcher.Constraint("DistanceX", 25, 3, -1, 1, Q("5.49 in")))
sketch3.addConstraint(Sketcher.Constraint("DistanceX", 26, 3, -1, 1, Q("4.99 in")))
sketch3.addConstraint(Sketcher.Constraint("DistanceX", 27, 3, -1, 1, Q("4.49 in")))
sketch3.addConstraint(Sketcher.Constraint("DistanceX", 28, 3, -1, 1, Q("3.99 in")))
sketch3.addConstraint(Sketcher.Constraint("DistanceX", 29, 3, -1, 1, Q("3.49 in")))
sketch3.addConstraint(Sketcher.Constraint("DistanceX", 30, 3, -1, 1, Q("2.99 in")))
sketch3.addConstraint(Sketcher.Constraint("DistanceX", 31, 3, -1, 1, Q("2.49 in")))
sketch3.addConstraint(Sketcher.Constraint("DistanceX", 32, 3, -1, 1, Q("1.99 in")))
sketch3.addConstraint(Sketcher.Constraint("DistanceX", 33, 3, -1, 1, Q("1.49 in")))
sketch3.addConstraint(Sketcher.Constraint("DistanceX", 34, 3, -1, 1, Q("0.99 in")))
sketch3.addConstraint(Sketcher.Constraint("DistanceX", 35, 3, -1, 1, Q("0.49 in")))
sketch3.addConstraint(Sketcher.Constraint("DistanceX", -1, 1, 36, 3, Q("0.01 in")))
sketch3.addConstraint(Sketcher.Constraint("DistanceX", -1, 1, 37, 3, Q("0.51 in")))
sketch3.addConstraint(Sketcher.Constraint("DistanceX", -1, 1, 38, 3, Q("1.01 in")))
sketch3.addConstraint(Sketcher.Constraint("DistanceX", -1, 1, 39, 3, Q("1.51 in")))
sketch3.addConstraint(Sketcher.Constraint("DistanceX", -1, 1, 40, 3, Q("2.01 in")))
sketch3.addConstraint(Sketcher.Constraint("DistanceX", -1, 1, 41, 3, Q("2.51 in")))
sketch3.addConstraint(Sketcher.Constraint("DistanceX", -1, 1, 42, 3, Q("3.01 in")))
sketch3.addConstraint(Sketcher.Constraint("DistanceX", -1, 1, 43, 3, Q("3.51 in")))
sketch3.addConstraint(Sketcher.Constraint("DistanceX", -1, 1, 44, 3, Q("4.01 in")))
sketch3.addConstraint(Sketcher.Constraint("DistanceX", -1, 1, 45, 3, Q("4.51 in")))
sketch3.addConstraint(Sketcher.Constraint("DistanceX", -1, 1, 46, 3, Q("5.01 in")))
sketch3.addConstraint(Sketcher.Constraint("DistanceX", -1, 1, 47, 3, Q("5.51 in")))
sketch3.addConstraint(Sketcher.Constraint("DistanceX", -1, 1, 48, 3, Q("6.01 in")))
sketch3.addConstraint(Sketcher.Constraint("DistanceX", -1, 1, 49, 3, Q("6.51 in")))
sketch3.addConstraint(Sketcher.Constraint("DistanceX", -1, 1, 50, 3, Q("7.01 in")))
sketch3.addConstraint(Sketcher.Constraint("DistanceX", -1, 1, 51, 3, Q("7.51 in")))
sketch3.addConstraint(Sketcher.Constraint("DistanceX", -1, 1, 52, 3, Q("8.01 in")))
sketch3.addConstraint(Sketcher.Constraint("DistanceX", -1, 1, 53, 3, Q("8.51 in")))
sketch3.addConstraint(Sketcher.Constraint("DistanceX", -1, 1, 54, 3, Q("9.01 in")))
sketch3.addConstraint(Sketcher.Constraint("DistanceX", -1, 1, 55, 3, Q("9.51 in")))
sketch3.addConstraint(Sketcher.Constraint("DistanceX", -1, 1, 56, 3, Q("10.01 in")))
sketch3.addConstraint(Sketcher.Constraint("DistanceX", -1, 1, 57, 3, Q("10.51 in")))
sketch3.addConstraint(Sketcher.Constraint("DistanceX", -1, 1, 58, 3, Q("11.01 in")))
sketch3.addConstraint(Sketcher.Constraint("DistanceX", -1, 1, 59, 3, Q("11.51 in")))
sketch3.addConstraint(Sketcher.Constraint("DistanceX", -1, 1, 60, 3, Q("12.01 in")))
sketch3.addConstraint(Sketcher.Constraint("DistanceX", -1, 1, 61, 3, Q("12.51 in")))
sketch3.addConstraint(Sketcher.Constraint("DistanceX", -1, 1, 62, 3, Q("13.01 in")))
sketch3.addConstraint(Sketcher.Constraint("DistanceX", -1, 1, 63, 3, Q("13.51 in")))
sketch3.addConstraint(Sketcher.Constraint("DistanceX", -1, 1, 64, 3, Q("14.01 in")))
sketch3.addConstraint(Sketcher.Constraint("DistanceX", -1, 1, 65, 3, Q("14.51 in")))
sketch3.addConstraint(Sketcher.Constraint("DistanceX", -1, 1, 66, 3, Q("15.01 in")))
sketch3.addConstraint(Sketcher.Constraint("DistanceX", -1, 1, 67, 3, Q("15.51 in")))
sketch3.addConstraint(Sketcher.Constraint("DistanceX", -1, 1, 68, 3, Q("16.01 in")))
sketch3.addConstraint(Sketcher.Constraint("DistanceX", -1, 1, 69, 3, Q("16.51 in")))
sketch3.addConstraint(Sketcher.Constraint("DistanceX", -1, 1, 70, 3, Q("17.01 in")))
sketch3.addConstraint(Sketcher.Constraint("DistanceX", -1, 1, 71, 3, Q("17.51 in")))
sketch3.addConstraint(Sketcher.Constraint("DistanceX", -1, 1, 72, 3, Q("18.01 in")))
pocket2 = body.newObject("PartDesign::Pocket", "Pocket001")
pocket2.Profile = sketch3
pocket2.Type = "ThroughAll"

sketch4 = body.newObject("Sketcher::SketchObject", "Sketch003")
sketch4.AttachmentSupport = (doc.getObject("XZ_Plane"), [""])
sketch4.MapMode = "FlatFace"
sketch4.AttachmentOffset = App.Placement(V(0, 0, -1 * 25.4), App.Rotation())
sketch4.addGeometry(Part.Circle(V(-457.2, -12.7, 0), V(0, 0, 1), 2.5), False)
sketch4.addGeometry(Part.Circle(V(-457.2, 12.7, 0), V(0, 0, 1), 2.5), False)
sketch4.addGeometry(Part.Circle(V(-457.2, 0, 0), V(0, 0, 1), 2.5), False)
sketch4.addGeometry(Part.Circle(V(457.2, -12.7, 0), V(0, 0, 1), 2.5), False)
sketch4.addGeometry(Part.Circle(V(457.2, 0, 0), V(0, 0, 1), 2.5), False)
sketch4.addGeometry(Part.Circle(V(457.2, 12.7, 0), V(0, 0, 1), 2.5), False)
sketch4.addConstraint(Sketcher.Constraint("Equal", 0, 1))
sketch4.addConstraint(Sketcher.Constraint("Equal", 1, 2))
sketch4.addConstraint(Sketcher.Constraint("Equal", 2, 3))
sketch4.addConstraint(Sketcher.Constraint("Equal", 3, 4))
sketch4.addConstraint(Sketcher.Constraint("Equal", 4, 5))
sketch4.addConstraint(Sketcher.Constraint("Symmetric", 1, 3, 3, 3, -1, 1))
sketch4.addConstraint(Sketcher.Constraint("Symmetric", 2, 3, 4, 3, -1, 1))
sketch4.addConstraint(Sketcher.Constraint("Symmetric", 0, 3, 5, 3, -1, 1))
sketch4.addConstraint(Sketcher.Constraint("Symmetric", 0, 3, 3, 3, -2))
sketch4.addConstraint(Sketcher.Constraint("PointOnObject", 2, 3, -1))
sketch4.addConstraint(Sketcher.Constraint("Vertical", 1, 3, 2, 3))
sketch4.addConstraint(Sketcher.Constraint("Diameter", 0, Q("0.2 in")))
sketch4.addConstraint(Sketcher.Constraint("DistanceX", 0, 3, -1, 1, Q("18 in")))
sketch4.addConstraint(Sketcher.Constraint("DistanceY", 0, 3, 1, 3, Q("1 in")))
pocket3 = body.newObject("PartDesign::Pocket", "Pocket002")
pocket3.Profile = sketch4
pocket3.Type = "ThroughAll"
pocket3.Reversed = True

doc.recompute()
